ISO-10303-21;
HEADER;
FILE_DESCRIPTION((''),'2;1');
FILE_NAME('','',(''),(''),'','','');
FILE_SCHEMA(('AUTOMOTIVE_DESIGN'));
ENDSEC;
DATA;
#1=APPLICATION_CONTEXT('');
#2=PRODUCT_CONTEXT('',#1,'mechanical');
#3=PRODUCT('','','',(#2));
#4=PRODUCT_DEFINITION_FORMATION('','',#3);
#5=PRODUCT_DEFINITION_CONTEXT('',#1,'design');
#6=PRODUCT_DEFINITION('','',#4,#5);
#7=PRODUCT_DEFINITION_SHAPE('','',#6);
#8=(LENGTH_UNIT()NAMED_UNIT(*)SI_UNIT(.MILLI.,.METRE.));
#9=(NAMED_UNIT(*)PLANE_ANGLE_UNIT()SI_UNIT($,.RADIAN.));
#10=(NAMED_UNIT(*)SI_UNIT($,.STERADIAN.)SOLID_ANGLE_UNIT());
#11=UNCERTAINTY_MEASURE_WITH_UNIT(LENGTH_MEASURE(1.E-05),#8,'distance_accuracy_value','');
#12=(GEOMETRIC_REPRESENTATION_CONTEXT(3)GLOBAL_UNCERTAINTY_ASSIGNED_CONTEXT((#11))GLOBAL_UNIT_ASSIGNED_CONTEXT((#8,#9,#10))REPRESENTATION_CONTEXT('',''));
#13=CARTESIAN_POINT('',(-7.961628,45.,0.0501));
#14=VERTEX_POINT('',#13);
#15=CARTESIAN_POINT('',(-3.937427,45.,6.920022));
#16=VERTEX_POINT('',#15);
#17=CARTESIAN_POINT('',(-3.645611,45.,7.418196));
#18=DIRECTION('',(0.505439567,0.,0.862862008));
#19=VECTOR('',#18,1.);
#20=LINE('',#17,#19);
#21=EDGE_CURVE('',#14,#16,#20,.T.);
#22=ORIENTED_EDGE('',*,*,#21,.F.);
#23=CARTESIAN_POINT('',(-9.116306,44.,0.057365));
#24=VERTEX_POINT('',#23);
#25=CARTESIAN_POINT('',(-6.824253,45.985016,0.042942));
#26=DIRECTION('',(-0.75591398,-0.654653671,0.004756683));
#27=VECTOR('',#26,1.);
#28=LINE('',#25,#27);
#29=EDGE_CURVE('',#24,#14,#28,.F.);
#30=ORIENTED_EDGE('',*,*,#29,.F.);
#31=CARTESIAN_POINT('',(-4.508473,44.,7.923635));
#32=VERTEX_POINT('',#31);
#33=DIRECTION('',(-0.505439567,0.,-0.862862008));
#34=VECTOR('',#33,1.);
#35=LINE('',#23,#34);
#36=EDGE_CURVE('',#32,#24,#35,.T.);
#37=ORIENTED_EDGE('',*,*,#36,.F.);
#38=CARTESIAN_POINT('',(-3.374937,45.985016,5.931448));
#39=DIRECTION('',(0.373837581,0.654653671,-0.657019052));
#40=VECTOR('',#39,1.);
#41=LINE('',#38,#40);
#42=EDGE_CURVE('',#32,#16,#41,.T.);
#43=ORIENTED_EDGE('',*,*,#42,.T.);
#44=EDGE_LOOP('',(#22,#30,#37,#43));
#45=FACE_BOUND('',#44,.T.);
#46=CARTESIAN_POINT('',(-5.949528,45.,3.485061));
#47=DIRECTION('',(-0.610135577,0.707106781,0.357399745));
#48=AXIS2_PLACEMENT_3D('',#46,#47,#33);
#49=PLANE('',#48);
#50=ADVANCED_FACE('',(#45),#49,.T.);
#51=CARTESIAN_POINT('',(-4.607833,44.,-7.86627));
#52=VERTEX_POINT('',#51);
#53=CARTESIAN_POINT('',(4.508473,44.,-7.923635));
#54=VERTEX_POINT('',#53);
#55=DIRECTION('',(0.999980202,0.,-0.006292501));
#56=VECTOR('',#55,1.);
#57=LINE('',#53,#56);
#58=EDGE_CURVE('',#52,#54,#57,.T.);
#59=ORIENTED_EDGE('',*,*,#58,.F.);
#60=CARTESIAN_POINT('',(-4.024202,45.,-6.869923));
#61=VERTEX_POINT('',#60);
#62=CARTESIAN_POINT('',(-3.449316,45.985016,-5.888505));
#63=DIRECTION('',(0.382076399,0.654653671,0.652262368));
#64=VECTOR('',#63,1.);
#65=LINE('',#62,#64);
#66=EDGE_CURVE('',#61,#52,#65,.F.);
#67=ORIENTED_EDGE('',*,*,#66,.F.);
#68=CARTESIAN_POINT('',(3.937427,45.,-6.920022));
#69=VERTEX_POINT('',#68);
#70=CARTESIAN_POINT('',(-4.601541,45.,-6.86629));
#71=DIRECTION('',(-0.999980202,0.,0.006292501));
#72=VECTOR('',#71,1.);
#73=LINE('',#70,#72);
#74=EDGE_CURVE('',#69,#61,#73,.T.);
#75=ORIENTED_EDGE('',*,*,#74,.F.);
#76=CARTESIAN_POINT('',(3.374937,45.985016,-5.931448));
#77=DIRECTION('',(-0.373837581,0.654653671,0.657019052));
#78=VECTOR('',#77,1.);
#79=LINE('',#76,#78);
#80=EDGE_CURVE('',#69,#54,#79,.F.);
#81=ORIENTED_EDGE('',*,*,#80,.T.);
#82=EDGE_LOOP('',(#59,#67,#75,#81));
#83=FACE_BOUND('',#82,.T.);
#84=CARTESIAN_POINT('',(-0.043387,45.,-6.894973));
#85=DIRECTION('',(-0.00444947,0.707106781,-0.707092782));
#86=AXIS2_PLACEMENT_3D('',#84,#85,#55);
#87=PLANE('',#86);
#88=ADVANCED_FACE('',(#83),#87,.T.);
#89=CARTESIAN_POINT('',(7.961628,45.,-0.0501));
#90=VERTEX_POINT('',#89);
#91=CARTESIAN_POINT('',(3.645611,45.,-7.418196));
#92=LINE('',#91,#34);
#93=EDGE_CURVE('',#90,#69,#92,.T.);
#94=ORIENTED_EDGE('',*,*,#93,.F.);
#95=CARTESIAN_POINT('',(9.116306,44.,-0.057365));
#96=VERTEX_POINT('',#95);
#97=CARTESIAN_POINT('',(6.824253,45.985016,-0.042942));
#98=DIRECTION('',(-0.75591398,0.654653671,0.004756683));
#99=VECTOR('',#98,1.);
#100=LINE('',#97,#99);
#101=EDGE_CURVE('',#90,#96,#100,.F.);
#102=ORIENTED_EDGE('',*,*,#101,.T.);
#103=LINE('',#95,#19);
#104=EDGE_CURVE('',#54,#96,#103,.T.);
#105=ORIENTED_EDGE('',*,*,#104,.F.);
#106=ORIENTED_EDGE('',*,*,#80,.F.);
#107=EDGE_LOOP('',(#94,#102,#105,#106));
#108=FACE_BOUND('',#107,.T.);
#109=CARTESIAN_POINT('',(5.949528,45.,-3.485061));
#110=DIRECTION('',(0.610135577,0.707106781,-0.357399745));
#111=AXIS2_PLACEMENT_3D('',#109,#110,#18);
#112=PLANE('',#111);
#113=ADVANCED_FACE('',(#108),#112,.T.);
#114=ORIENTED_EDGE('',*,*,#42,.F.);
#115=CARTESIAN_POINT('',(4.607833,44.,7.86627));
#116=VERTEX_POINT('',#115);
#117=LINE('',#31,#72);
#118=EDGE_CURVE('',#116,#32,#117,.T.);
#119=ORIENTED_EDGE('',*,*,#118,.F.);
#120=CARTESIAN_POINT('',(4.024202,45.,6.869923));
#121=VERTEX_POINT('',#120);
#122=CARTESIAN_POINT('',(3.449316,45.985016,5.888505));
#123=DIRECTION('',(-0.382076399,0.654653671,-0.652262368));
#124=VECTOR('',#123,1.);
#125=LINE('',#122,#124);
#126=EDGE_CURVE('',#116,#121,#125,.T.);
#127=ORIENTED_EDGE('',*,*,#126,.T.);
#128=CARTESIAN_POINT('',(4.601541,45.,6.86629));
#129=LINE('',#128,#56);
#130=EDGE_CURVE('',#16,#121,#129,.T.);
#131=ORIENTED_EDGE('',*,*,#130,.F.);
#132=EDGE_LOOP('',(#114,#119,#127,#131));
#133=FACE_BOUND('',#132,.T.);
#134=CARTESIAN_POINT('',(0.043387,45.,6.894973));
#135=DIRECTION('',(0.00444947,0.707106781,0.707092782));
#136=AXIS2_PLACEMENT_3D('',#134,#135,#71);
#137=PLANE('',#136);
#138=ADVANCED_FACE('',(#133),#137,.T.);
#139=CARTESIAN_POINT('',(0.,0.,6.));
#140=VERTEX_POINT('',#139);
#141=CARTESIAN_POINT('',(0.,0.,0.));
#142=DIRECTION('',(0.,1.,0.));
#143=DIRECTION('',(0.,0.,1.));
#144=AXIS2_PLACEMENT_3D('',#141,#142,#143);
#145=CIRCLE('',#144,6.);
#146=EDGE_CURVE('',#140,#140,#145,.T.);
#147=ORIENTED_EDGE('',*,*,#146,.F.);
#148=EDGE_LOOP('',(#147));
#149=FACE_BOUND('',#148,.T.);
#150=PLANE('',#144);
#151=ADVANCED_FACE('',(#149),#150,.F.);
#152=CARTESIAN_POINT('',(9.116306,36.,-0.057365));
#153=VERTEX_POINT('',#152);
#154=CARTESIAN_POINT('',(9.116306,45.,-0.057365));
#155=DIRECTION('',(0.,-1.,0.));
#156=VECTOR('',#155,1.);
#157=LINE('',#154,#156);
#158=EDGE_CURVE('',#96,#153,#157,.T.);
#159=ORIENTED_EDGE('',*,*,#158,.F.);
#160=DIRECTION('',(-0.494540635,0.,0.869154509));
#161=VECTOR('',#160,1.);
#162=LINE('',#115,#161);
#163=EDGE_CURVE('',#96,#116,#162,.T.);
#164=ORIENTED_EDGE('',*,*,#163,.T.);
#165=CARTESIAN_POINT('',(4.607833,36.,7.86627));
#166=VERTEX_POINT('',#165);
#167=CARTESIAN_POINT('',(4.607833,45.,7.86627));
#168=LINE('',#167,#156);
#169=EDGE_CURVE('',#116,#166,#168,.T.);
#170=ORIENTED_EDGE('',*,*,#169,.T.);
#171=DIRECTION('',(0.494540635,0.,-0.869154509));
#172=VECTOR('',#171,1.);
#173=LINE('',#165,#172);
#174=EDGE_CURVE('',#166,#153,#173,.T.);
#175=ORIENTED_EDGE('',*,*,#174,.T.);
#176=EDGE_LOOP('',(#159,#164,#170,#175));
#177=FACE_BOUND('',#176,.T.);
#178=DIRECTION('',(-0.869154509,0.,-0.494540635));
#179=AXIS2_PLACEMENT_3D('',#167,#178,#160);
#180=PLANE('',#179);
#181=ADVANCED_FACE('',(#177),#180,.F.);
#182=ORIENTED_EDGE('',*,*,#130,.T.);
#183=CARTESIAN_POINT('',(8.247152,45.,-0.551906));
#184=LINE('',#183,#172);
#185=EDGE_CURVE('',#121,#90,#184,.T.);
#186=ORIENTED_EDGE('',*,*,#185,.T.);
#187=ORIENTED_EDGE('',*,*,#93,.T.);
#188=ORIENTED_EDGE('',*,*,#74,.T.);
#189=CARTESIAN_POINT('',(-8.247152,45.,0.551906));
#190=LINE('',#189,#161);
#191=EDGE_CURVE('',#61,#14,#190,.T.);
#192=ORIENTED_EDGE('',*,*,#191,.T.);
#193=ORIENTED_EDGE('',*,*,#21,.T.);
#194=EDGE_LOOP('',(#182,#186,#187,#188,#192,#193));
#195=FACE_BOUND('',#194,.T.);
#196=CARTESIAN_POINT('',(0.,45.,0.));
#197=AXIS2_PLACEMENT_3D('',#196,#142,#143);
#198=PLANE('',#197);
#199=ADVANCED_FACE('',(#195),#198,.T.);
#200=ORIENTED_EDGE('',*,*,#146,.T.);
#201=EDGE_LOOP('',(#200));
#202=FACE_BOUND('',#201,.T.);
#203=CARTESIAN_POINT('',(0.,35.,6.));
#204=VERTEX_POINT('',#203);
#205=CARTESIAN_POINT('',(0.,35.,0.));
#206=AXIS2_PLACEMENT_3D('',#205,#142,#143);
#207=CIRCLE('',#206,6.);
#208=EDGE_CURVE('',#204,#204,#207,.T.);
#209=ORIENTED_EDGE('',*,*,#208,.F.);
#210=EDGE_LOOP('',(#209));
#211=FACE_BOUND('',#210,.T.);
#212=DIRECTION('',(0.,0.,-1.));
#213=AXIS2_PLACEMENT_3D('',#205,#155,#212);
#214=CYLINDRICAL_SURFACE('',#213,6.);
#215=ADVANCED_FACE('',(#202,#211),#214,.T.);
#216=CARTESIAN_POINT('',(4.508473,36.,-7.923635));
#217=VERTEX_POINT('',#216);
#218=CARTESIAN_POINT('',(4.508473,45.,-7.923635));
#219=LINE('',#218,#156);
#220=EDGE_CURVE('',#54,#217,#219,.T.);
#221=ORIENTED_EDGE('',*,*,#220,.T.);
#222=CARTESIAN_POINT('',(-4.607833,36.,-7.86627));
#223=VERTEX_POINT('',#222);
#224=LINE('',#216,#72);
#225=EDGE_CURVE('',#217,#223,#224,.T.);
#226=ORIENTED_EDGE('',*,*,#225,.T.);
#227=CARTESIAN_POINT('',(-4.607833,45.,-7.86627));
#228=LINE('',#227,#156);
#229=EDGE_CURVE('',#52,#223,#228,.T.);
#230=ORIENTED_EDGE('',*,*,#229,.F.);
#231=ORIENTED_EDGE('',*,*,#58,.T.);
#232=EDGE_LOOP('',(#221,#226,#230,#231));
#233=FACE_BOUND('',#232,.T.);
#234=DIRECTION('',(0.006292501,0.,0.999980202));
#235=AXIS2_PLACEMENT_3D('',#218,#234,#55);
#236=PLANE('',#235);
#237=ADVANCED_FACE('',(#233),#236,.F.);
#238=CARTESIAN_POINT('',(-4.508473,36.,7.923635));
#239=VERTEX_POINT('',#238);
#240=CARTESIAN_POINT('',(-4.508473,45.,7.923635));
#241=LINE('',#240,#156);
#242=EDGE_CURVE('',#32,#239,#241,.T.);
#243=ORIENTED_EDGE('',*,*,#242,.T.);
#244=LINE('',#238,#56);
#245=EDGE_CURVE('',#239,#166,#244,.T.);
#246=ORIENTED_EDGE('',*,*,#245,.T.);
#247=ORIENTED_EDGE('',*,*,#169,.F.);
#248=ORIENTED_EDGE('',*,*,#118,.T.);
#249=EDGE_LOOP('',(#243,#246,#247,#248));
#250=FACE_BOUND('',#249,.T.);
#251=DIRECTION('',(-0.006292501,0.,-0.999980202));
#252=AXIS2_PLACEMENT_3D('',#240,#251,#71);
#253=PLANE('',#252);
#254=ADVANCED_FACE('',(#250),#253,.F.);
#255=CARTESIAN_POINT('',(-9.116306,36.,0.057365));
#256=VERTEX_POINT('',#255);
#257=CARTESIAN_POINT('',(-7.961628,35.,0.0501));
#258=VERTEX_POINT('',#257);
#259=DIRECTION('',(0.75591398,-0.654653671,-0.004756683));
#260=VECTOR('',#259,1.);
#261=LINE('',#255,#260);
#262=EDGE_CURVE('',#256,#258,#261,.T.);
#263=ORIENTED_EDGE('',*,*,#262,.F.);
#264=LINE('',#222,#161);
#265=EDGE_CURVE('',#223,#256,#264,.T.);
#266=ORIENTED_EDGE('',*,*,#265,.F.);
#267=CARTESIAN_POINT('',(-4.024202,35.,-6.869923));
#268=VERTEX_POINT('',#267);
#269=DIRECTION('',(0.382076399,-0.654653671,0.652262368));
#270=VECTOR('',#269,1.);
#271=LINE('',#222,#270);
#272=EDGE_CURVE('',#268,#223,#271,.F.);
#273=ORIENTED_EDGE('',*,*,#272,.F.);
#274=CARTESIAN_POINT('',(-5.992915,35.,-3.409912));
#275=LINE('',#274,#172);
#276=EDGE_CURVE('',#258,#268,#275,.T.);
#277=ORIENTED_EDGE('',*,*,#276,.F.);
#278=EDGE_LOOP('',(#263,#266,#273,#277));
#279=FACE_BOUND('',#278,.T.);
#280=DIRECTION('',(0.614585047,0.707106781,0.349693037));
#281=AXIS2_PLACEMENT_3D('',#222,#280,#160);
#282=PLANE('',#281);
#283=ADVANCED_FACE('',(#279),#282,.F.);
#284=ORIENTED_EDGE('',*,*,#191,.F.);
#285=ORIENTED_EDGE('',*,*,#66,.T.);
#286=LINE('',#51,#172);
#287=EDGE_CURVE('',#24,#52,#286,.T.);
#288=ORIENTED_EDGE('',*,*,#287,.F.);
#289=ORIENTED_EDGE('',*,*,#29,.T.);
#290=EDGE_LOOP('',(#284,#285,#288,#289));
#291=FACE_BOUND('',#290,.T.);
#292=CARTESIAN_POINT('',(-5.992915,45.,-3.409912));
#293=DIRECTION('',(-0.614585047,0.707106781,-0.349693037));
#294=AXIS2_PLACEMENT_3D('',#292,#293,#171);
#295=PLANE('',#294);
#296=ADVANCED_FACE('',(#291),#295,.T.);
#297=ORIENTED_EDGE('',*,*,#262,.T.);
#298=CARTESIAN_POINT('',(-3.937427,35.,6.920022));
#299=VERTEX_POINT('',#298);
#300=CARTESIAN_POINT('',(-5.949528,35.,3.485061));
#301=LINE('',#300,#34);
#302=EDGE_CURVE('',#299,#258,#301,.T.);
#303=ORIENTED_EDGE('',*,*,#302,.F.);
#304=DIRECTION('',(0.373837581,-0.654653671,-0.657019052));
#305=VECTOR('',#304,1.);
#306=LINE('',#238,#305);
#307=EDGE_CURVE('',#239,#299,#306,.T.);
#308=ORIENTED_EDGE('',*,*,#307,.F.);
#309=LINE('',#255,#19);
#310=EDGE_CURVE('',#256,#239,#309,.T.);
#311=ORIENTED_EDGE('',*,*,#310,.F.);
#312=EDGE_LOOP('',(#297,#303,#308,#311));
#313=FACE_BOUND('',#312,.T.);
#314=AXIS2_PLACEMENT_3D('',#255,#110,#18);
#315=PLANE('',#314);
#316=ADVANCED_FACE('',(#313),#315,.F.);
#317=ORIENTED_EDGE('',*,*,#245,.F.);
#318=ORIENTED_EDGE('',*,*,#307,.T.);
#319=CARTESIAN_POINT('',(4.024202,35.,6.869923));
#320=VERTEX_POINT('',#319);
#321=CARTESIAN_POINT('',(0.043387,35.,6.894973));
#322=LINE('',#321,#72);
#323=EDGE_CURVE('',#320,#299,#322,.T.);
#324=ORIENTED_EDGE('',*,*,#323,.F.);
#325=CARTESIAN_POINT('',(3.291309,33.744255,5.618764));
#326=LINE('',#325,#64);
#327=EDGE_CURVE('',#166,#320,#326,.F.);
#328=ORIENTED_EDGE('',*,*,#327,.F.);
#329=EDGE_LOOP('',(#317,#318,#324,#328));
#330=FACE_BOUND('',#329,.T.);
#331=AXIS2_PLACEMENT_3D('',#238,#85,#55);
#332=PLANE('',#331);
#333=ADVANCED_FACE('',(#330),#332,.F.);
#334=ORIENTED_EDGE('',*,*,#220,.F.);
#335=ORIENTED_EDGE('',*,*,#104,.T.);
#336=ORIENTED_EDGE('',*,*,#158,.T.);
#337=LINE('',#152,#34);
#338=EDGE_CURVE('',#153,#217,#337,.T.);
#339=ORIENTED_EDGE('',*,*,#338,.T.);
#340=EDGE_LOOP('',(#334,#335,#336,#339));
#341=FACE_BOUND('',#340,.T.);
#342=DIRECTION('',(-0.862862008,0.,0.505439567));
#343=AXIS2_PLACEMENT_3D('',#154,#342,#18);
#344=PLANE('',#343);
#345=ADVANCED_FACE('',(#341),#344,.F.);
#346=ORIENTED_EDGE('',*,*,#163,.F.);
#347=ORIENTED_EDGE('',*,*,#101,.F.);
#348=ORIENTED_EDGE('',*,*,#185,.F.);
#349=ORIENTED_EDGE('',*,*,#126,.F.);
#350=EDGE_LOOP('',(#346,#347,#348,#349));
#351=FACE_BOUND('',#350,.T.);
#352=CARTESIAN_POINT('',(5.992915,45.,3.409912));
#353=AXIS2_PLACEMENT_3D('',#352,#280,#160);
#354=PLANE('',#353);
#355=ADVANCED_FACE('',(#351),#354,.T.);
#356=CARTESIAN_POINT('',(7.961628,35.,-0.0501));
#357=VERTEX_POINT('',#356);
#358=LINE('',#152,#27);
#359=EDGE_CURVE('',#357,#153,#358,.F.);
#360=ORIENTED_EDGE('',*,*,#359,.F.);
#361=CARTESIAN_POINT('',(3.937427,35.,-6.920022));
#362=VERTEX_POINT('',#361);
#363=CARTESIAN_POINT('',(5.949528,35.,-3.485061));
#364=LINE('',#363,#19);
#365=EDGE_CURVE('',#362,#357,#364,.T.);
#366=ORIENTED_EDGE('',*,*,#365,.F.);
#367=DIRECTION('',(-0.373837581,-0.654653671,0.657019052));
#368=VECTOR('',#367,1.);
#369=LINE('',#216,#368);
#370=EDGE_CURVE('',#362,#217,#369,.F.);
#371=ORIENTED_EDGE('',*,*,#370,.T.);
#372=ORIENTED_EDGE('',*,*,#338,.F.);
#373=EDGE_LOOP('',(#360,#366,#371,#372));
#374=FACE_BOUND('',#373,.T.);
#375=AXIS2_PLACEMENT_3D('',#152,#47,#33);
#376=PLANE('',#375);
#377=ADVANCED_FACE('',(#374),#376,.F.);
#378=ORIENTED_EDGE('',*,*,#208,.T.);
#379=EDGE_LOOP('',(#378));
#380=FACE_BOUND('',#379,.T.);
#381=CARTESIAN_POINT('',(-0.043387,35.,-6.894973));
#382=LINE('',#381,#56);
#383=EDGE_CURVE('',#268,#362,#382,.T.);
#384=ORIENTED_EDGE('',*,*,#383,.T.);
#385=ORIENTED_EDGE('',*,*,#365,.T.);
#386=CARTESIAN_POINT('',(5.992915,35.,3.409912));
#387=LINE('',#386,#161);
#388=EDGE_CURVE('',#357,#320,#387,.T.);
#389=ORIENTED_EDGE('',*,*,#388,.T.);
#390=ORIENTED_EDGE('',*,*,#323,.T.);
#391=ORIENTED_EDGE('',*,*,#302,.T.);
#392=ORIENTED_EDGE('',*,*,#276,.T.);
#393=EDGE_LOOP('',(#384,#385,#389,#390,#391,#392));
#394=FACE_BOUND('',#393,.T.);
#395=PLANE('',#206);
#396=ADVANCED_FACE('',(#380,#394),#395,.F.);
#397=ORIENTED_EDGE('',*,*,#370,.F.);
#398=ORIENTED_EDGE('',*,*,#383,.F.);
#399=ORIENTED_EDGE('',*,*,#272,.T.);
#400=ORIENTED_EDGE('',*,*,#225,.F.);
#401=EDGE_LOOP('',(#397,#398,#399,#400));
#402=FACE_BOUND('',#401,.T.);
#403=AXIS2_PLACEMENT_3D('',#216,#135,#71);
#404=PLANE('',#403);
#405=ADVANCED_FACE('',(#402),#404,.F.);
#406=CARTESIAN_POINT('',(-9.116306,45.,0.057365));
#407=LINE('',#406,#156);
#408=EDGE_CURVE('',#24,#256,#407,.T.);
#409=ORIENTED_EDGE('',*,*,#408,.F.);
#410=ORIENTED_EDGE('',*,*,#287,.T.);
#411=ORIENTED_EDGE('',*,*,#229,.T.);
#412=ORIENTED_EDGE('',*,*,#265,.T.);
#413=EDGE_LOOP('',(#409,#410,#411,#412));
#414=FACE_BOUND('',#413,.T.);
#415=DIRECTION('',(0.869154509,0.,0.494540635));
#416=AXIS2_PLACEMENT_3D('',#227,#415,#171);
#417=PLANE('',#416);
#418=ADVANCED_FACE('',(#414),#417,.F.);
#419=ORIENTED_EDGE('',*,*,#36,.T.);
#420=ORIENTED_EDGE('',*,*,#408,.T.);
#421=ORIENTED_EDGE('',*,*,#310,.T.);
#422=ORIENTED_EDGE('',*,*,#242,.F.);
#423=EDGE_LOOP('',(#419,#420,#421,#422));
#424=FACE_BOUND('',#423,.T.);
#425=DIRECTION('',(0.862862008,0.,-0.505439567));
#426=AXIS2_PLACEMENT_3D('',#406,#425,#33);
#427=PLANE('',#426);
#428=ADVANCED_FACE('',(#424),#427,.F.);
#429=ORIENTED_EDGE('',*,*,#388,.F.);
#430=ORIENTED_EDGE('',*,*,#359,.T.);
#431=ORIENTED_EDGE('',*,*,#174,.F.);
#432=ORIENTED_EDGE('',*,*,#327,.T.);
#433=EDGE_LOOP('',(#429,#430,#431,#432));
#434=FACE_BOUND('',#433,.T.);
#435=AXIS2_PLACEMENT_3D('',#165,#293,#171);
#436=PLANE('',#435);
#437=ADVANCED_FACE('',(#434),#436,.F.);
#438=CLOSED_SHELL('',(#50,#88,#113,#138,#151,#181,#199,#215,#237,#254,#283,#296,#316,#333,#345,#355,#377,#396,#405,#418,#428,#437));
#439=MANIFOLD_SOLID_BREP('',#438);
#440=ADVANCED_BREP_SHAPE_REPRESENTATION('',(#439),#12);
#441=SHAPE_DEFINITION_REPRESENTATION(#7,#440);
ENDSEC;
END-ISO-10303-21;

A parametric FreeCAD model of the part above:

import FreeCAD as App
import Part
import Sketcher
from FreeCAD import Vector
Q = App.Units.Quantity


def edges_at(feature, points):
    """Names of the edges that pass closest to the given points."""
    edges = feature.Shape.Edges
    near = lambda p: min(range(len(edges)), key=lambda i: edges[i].distToShape(Part.Vertex(*p))[0])
    return sorted({f"Edge{near(p) + 1}" for p in points})


def add_polygon(sketch, points):
    """Adds a closed chain of lines whose ends are joined by coincident constraints."""
    first, n = sketch.GeometryCount, len(points)
    for a, b in zip(points, points[1:] + points[:1]):
        sketch.addGeometry(Part.LineSegment(App.Vector(*a, 0), App.Vector(*b, 0)), False)
    for i in range(n):
        sketch.addConstraint(Sketcher.Constraint("Coincident", first + i, 2, first + (i + 1) % n, 1))

doc = App.newDocument("Part")
body = doc.addObject("PartDesign::Body", "Body")

# Sketch on XZ plane
sketch1 = body.newObject("Sketcher::SketchObject", "Sketch")
sketch1.AttachmentSupport = (doc.getObject("XZ_Plane"), [""])
sketch1.MapMode = "FlatFace"
sketch1.addGeometry(Part.Circle(Vector(0, 0, 0), Vector(0, 0, 1), 6), False)
sketch1.addConstraint([
    Sketcher.Constraint("Coincident", 0, 3, -1, 1),
    Sketcher.Constraint("Diameter", 0, Q("12 mm")),
])
pad1 = body.newObject("PartDesign::Pad", "Pad")
pad1.Profile = sketch1
pad1.Length = 35
pad1.Reversed = True

# Sketch on XZ plane
sketch2 = body.newObject("Sketcher::SketchObject", "Sketch001")
sketch2.AttachmentSupport = (doc.getObject("XZ_Plane"), [""])
sketch2.MapMode = "FlatFace"
sketch2.AttachmentOffset = App.Placement(Vector(0, 0, -35), App.Rotation())
add_polygon(sketch2, [(5, 8), (9, 0), (5, -8), (-5, -8), (-9, 0), (-5, 8)])  # lines 0-5
sketch2.addConstraint([
    Sketcher.Constraint("Symmetric", 0, 2, 3, 2, -1, 1),
    Sketcher.Constraint("Symmetric", 1, 2, 4, 2, -1, 1),
    Sketcher.Constraint("Symmetric", 2, 2, 5, 2, -1, 1),
    Sketcher.Constraint("Equal", 0, 1),
    Sketcher.Constraint("Equal", 1, 2),
    Sketcher.Constraint("DistanceY", 1, 2, 3, 2, Q("7.981001 mm")),
    Sketcher.Constraint("DistanceY", 2, 2, -1, 1, Q("7.86627 mm")),
    Sketcher.Constraint("DistanceY", 1, 2, 0, 2, Q("7.86627 mm")),
    Sketcher.Constraint("DistanceX", 2, 2, 0, 2, Q("13.724139 mm")),
])
pad2 = body.newObject("PartDesign::Pad", "Pad001")
pad2.Profile = sketch2
pad2.Length = 10
pad2.Reversed = True
doc.recompute()

chamfer = body.newObject("PartDesign::Chamfer", "Chamfer")
chamfer.Base = (pad2, edges_at(pad2, [
    (0.05, 35, 7.895),
    (6.862, 35, 3.904),
    (6.812, 35, -3.991),
    (-0.05, 35, -7.895),
    (-6.862, 35, -3.904),
    (-6.812, 35, 3.991),
    (0.05, 45, 7.895),
    (6.862, 45, 3.904),
    (6.812, 45, -3.991),
    (-0.05, 45, -7.895),
    (-6.862, 45, -3.904),
    (-6.812, 45, 3.991),
]))
chamfer.Size = 1

doc.recompute()
